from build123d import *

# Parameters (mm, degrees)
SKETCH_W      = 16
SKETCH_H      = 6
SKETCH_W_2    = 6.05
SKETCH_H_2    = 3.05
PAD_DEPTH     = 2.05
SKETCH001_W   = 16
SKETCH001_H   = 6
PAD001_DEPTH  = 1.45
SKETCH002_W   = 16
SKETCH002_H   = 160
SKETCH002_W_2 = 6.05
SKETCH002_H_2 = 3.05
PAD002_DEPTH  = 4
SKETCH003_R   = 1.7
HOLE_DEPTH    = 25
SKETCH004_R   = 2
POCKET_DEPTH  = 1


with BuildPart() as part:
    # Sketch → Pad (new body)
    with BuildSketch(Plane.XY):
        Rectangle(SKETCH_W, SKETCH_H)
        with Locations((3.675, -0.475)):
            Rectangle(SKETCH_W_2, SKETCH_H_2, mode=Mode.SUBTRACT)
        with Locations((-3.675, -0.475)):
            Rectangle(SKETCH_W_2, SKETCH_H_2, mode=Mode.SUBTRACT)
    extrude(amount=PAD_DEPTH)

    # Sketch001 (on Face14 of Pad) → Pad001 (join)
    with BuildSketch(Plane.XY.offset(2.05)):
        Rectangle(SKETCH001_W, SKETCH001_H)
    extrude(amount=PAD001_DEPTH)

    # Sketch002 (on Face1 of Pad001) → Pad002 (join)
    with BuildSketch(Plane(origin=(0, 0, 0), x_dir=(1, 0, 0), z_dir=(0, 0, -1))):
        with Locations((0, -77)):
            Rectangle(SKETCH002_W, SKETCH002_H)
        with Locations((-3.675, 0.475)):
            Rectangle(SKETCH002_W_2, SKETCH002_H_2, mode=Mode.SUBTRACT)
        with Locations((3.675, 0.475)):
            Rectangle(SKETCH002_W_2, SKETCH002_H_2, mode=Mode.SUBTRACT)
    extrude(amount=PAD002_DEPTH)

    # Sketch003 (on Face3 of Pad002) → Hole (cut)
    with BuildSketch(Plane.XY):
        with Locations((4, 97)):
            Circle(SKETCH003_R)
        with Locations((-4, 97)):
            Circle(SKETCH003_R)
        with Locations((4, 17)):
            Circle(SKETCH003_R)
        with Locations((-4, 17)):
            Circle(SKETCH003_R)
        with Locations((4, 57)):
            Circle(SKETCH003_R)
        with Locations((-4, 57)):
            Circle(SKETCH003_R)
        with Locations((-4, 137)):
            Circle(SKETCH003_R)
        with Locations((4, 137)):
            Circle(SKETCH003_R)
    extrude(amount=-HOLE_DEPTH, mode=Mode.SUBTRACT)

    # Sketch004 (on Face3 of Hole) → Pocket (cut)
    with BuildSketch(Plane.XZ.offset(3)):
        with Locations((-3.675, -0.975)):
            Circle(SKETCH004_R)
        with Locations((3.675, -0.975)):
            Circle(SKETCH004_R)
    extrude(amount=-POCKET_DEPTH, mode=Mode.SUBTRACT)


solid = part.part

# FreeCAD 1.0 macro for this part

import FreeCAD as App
import Part
import Sketcher


def add_polygon(sketch, points):
    """Adds a closed chain of lines whose ends are joined by coincident constraints."""
    first, n = sketch.GeometryCount, len(points)
    for a, b in zip(points, points[1:] + points[:1]):
        sketch.addGeometry(Part.LineSegment(App.Vector(*a, 0), App.Vector(*b, 0)), False)
    for i in range(n):
        sketch.addConstraint(Sketcher.Constraint("Coincident", first + i, 2, first + (i + 1) % n, 1))

doc = App.newDocument("Part")
body = doc.addObject("PartDesign::Body", "Body")

# Sketch on XY plane
sketch1 = body.newObject("Sketcher::SketchObject", "Sketch")
sketch1.AttachmentSupport = (doc.getObject("XY_Plane"), [""])
sketch1.MapMode = "FlatFace"
add_polygon(sketch1, [(-8, 3), (-8, -3), (8, -3), (8, 3)])  # lines 0-3
add_polygon(sketch1, [(-0.7, -2), (-6.7, -2), (-6.7, 1.1), (-0.7, 1.1)])  # lines 4-7
add_polygon(sketch1, [(6.7, -2), (0.7, -2), (0.7, 1.1), (6.7, 1.1)])  # lines 8-11
sketch1.addConstraint([
    Sketcher.Constraint("Vertical", 0),
    Sketcher.Constraint("Horizontal", 1),
    Sketcher.Constraint("Vertical", 2),
    Sketcher.Constraint("Horizontal", 3),
    Sketcher.Constraint("Horizontal", 4),
    Sketcher.Constraint("Vertical", 5),
    Sketcher.Constraint("Horizontal", 6),
    Sketcher.Constraint("Vertical", 7),
    Sketcher.Constraint("Horizontal", 8),
    Sketcher.Constraint("Vertical", 9),
    Sketcher.Constraint("Horizontal", 10),
    Sketcher.Constraint("Vertical", 11),
    Sketcher.Constraint("Symmetric", 0, 2, 2, 2, -1, 1),
    Sketcher.Constraint("Symmetric", 7, 2, 8, 2, -2),
    Sketcher.Constraint("Symmetric", 5, 2, 10, 2, -2),
    Sketcher.Constraint("DistanceX", 1, 1, 1, 2, 16.0),
    Sketcher.Constraint("DistanceY", 0, 2, 0, 1, 6.0),
    Sketcher.Constraint("DistanceY", 4, 2, -1, 1, 2.0),
    Sketcher.Constraint("DistanceX", 4, 2, 4, 1, 6.05),
    Sketcher.Constraint("DistanceY", 5, 1, 5, 2, 3.05),
    Sketcher.Constraint("DistanceX", 4, 2, -1, 1, 6.7),
])
pad1 = body.newObject("PartDesign::Pad", "Pad")
pad1.Profile = sketch1
pad1.Length = 2.05

# Sketch on XY plane
sketch2 = body.newObject("Sketcher::SketchObject", "Sketch001")
sketch2.AttachmentSupport = (doc.getObject("XY_Plane"), [""])
sketch2.MapMode = "FlatFace"
sketch2.AttachmentOffset = App.Placement(App.Vector(0, 0, 2.05), App.Rotation())
add_polygon(sketch2, [(-8, 3), (-8, -3), (8, -3), (8, 3)])  # lines 0-3
sketch2.addConstraint([
    Sketcher.Constraint("Vertical", 0),
    Sketcher.Constraint("Horizontal", 1),
    Sketcher.Constraint("Vertical", 2),
    Sketcher.Constraint("Horizontal", 3),
    Sketcher.Constraint("Symmetric", 0, 2, 2, 2, -1, 1),
    Sketcher.Constraint("DistanceX", 1, 1, 1, 2, 16.0),
    Sketcher.Constraint("DistanceY", 0, 2, 0, 1, 6.0),
])
pad2 = body.newObject("PartDesign::Pad", "Pad001")
pad2.Profile = sketch2
pad2.Length = 1.45

# Sketch on XY plane
sketch3 = body.newObject("Sketcher::SketchObject", "Sketch002")
sketch3.AttachmentSupport = (doc.getObject("XY_Plane"), [""])
sketch3.MapMode = "FlatFace"
add_polygon(sketch3, [(-8, -3), (-8, 157), (8, 157), (8, -3)])  # lines 0-3
add_polygon(sketch3, [(-0.7, 1.1), (-6.7, 1.1), (-6.7, -2), (-0.7, -2)])  # lines 4-7
add_polygon(sketch3, [(6.7, 1.1), (0.7, 1.1), (0.7, -2), (6.7, -2)])  # lines 8-11
sketch3.addConstraint([
    Sketcher.Constraint("Vertical", 0),
    Sketcher.Constraint("Horizontal", 1),
    Sketcher.Constraint("Vertical", 2),
    Sketcher.Constraint("Horizontal", 3),
    Sketcher.Constraint("Horizontal", 4),
    Sketcher.Constraint("Vertical", 5),
    Sketcher.Constraint("Horizontal", 6),
    Sketcher.Constraint("Vertical", 7),
    Sketcher.Constraint("Horizontal", 8),
    Sketcher.Constraint("Vertical", 9),
    Sketcher.Constraint("Horizontal", 10),
    Sketcher.Constraint("Vertical", 11),
    Sketcher.Constraint("Symmetric", 7, 2, 8, 2, -2),
    Sketcher.Constraint("Symmetric", 5, 2, 10, 2, -2),
    Sketcher.Constraint("DistanceX", 1, 1, 1, 2, 16.0),
    Sketcher.Constraint("DistanceY", 0, 1, 0, 2, 160.0),
    Sketcher.Constraint("DistanceX", 0, 2, -1, 1, 8.0),
    Sketcher.Constraint("DistanceY", -1, 1, 0, 2, 157.0),
    Sketcher.Constraint("DistanceY", 5, 2, -1, 1, 2.0),
    Sketcher.Constraint("DistanceX", 4, 2, 4, 1, 6.05),
    Sketcher.Constraint("DistanceY", 5, 2, 5, 1, 3.05),
    Sketcher.Constraint("DistanceX", 4, 2, -1, 1, 6.7),
])
pad3 = body.newObject("PartDesign::Pad", "Pad002")
pad3.Profile = sketch3
pad3.Length = 4
pad3.Reversed = True

# Sketch on XY plane
sketch4 = body.newObject("Sketcher::SketchObject", "Sketch003")
sketch4.AttachmentSupport = (doc.getObject("XY_Plane"), [""])
sketch4.MapMode = "FlatFace"
sketch4.addGeometry([
    Part.Circle(App.Vector(4, 97, 0), App.Vector(0, 0, 1), 1.7),  # 0
    Part.Circle(App.Vector(-4, 97, 0), App.Vector(0, 0, 1), 1.7),  # 1
    Part.Circle(App.Vector(4, 17, 0), App.Vector(0, 0, 1), 1.7),  # 2
    Part.Circle(App.Vector(-4, 17, 0), App.Vector(0, 0, 1), 1.7),  # 3
    Part.Circle(App.Vector(4, 57, 0), App.Vector(0, 0, 1), 1.7),  # 4
    Part.Circle(App.Vector(-4, 57, 0), App.Vector(0, 0, 1), 1.7),  # 5
    Part.Circle(App.Vector(-4, 137, 0), App.Vector(0, 0, 1), 1.7),  # 6
    Part.Circle(App.Vector(4, 137, 0), App.Vector(0, 0, 1), 1.7),  # 7
], False)
sketch4.addConstraint([
    Sketcher.Constraint("Equal", 0, 1),
    Sketcher.Constraint("Equal", 1, 2),
    Sketcher.Constraint("Equal", 2, 3),
    Sketcher.Constraint("Equal", 3, 4),
    Sketcher.Constraint("Equal", 4, 5),
    Sketcher.Constraint("Equal", 5, 6),
    Sketcher.Constraint("Equal", 6, 7),
    Sketcher.Constraint("Symmetric", 0, 3, 1, 3, -2),
    Sketcher.Constraint("Symmetric", 2, 3, 3, 3, -2),
    Sketcher.Constraint("Symmetric", 4, 3, 5, 3, -2),
    Sketcher.Constraint("Symmetric", 6, 3, 7, 3, -2),
    Sketcher.Constraint("Vertical", 0, 3, 2, 3),
    Sketcher.Constraint("Vertical", 2, 3, 4, 3),
    Sketcher.Constraint("Vertical", 5, 3, 6, 3),
    Sketcher.Constraint("Diameter", 0, 3.4),
    Sketcher.Constraint("DistanceX", -1, 1, 0, 3, 4.0),
    Sketcher.Constraint("DistanceY", -1, 1, 0, 3, 97.0),
    Sketcher.Constraint("DistanceY", -1, 1, 2, 3, 17.0),
    Sketcher.Constraint("DistanceY", -1, 1, 4, 3, 57.0),
    Sketcher.Constraint("DistanceY", -1, 1, 6, 3, 137.0),
])
pocket1 = body.newObject("PartDesign::Pocket", "Pocket")
pocket1.Profile = sketch4
pocket1.Length = 25

# Sketch on XZ plane
sketch5 = body.newObject("Sketcher::SketchObject", "Sketch004")
sketch5.AttachmentSupport = (doc.getObject("XZ_Plane"), [""])
sketch5.MapMode = "FlatFace"
sketch5.AttachmentOffset = App.Placement(App.Vector(0, 0, 3), App.Rotation())
sketch5.addGeometry([
    Part.Circle(App.Vector(-3.7, -1, 0), App.Vector(0, 0, 1), 2),
    Part.Circle(App.Vector(3.7, -1, 0), App.Vector(0, 0, 1), 2),
], False)
sketch5.addConstraint([
    Sketcher.Constraint("Equal", 0, 1),
    Sketcher.Constraint("Symmetric", 0, 3, 1, 3, -2),
    Sketcher.Constraint("Diameter", 0, 4.0),
    Sketcher.Constraint("DistanceX", 0, 3, 1, 3, 7.35),
    Sketcher.Constraint("DistanceY", 0, 3, -1, 1, 0.975),
])
pocket2 = body.newObject("PartDesign::Pocket", "Pocket001")
pocket2.Profile = sketch5
pocket2.Length = 1

doc.recompute()
